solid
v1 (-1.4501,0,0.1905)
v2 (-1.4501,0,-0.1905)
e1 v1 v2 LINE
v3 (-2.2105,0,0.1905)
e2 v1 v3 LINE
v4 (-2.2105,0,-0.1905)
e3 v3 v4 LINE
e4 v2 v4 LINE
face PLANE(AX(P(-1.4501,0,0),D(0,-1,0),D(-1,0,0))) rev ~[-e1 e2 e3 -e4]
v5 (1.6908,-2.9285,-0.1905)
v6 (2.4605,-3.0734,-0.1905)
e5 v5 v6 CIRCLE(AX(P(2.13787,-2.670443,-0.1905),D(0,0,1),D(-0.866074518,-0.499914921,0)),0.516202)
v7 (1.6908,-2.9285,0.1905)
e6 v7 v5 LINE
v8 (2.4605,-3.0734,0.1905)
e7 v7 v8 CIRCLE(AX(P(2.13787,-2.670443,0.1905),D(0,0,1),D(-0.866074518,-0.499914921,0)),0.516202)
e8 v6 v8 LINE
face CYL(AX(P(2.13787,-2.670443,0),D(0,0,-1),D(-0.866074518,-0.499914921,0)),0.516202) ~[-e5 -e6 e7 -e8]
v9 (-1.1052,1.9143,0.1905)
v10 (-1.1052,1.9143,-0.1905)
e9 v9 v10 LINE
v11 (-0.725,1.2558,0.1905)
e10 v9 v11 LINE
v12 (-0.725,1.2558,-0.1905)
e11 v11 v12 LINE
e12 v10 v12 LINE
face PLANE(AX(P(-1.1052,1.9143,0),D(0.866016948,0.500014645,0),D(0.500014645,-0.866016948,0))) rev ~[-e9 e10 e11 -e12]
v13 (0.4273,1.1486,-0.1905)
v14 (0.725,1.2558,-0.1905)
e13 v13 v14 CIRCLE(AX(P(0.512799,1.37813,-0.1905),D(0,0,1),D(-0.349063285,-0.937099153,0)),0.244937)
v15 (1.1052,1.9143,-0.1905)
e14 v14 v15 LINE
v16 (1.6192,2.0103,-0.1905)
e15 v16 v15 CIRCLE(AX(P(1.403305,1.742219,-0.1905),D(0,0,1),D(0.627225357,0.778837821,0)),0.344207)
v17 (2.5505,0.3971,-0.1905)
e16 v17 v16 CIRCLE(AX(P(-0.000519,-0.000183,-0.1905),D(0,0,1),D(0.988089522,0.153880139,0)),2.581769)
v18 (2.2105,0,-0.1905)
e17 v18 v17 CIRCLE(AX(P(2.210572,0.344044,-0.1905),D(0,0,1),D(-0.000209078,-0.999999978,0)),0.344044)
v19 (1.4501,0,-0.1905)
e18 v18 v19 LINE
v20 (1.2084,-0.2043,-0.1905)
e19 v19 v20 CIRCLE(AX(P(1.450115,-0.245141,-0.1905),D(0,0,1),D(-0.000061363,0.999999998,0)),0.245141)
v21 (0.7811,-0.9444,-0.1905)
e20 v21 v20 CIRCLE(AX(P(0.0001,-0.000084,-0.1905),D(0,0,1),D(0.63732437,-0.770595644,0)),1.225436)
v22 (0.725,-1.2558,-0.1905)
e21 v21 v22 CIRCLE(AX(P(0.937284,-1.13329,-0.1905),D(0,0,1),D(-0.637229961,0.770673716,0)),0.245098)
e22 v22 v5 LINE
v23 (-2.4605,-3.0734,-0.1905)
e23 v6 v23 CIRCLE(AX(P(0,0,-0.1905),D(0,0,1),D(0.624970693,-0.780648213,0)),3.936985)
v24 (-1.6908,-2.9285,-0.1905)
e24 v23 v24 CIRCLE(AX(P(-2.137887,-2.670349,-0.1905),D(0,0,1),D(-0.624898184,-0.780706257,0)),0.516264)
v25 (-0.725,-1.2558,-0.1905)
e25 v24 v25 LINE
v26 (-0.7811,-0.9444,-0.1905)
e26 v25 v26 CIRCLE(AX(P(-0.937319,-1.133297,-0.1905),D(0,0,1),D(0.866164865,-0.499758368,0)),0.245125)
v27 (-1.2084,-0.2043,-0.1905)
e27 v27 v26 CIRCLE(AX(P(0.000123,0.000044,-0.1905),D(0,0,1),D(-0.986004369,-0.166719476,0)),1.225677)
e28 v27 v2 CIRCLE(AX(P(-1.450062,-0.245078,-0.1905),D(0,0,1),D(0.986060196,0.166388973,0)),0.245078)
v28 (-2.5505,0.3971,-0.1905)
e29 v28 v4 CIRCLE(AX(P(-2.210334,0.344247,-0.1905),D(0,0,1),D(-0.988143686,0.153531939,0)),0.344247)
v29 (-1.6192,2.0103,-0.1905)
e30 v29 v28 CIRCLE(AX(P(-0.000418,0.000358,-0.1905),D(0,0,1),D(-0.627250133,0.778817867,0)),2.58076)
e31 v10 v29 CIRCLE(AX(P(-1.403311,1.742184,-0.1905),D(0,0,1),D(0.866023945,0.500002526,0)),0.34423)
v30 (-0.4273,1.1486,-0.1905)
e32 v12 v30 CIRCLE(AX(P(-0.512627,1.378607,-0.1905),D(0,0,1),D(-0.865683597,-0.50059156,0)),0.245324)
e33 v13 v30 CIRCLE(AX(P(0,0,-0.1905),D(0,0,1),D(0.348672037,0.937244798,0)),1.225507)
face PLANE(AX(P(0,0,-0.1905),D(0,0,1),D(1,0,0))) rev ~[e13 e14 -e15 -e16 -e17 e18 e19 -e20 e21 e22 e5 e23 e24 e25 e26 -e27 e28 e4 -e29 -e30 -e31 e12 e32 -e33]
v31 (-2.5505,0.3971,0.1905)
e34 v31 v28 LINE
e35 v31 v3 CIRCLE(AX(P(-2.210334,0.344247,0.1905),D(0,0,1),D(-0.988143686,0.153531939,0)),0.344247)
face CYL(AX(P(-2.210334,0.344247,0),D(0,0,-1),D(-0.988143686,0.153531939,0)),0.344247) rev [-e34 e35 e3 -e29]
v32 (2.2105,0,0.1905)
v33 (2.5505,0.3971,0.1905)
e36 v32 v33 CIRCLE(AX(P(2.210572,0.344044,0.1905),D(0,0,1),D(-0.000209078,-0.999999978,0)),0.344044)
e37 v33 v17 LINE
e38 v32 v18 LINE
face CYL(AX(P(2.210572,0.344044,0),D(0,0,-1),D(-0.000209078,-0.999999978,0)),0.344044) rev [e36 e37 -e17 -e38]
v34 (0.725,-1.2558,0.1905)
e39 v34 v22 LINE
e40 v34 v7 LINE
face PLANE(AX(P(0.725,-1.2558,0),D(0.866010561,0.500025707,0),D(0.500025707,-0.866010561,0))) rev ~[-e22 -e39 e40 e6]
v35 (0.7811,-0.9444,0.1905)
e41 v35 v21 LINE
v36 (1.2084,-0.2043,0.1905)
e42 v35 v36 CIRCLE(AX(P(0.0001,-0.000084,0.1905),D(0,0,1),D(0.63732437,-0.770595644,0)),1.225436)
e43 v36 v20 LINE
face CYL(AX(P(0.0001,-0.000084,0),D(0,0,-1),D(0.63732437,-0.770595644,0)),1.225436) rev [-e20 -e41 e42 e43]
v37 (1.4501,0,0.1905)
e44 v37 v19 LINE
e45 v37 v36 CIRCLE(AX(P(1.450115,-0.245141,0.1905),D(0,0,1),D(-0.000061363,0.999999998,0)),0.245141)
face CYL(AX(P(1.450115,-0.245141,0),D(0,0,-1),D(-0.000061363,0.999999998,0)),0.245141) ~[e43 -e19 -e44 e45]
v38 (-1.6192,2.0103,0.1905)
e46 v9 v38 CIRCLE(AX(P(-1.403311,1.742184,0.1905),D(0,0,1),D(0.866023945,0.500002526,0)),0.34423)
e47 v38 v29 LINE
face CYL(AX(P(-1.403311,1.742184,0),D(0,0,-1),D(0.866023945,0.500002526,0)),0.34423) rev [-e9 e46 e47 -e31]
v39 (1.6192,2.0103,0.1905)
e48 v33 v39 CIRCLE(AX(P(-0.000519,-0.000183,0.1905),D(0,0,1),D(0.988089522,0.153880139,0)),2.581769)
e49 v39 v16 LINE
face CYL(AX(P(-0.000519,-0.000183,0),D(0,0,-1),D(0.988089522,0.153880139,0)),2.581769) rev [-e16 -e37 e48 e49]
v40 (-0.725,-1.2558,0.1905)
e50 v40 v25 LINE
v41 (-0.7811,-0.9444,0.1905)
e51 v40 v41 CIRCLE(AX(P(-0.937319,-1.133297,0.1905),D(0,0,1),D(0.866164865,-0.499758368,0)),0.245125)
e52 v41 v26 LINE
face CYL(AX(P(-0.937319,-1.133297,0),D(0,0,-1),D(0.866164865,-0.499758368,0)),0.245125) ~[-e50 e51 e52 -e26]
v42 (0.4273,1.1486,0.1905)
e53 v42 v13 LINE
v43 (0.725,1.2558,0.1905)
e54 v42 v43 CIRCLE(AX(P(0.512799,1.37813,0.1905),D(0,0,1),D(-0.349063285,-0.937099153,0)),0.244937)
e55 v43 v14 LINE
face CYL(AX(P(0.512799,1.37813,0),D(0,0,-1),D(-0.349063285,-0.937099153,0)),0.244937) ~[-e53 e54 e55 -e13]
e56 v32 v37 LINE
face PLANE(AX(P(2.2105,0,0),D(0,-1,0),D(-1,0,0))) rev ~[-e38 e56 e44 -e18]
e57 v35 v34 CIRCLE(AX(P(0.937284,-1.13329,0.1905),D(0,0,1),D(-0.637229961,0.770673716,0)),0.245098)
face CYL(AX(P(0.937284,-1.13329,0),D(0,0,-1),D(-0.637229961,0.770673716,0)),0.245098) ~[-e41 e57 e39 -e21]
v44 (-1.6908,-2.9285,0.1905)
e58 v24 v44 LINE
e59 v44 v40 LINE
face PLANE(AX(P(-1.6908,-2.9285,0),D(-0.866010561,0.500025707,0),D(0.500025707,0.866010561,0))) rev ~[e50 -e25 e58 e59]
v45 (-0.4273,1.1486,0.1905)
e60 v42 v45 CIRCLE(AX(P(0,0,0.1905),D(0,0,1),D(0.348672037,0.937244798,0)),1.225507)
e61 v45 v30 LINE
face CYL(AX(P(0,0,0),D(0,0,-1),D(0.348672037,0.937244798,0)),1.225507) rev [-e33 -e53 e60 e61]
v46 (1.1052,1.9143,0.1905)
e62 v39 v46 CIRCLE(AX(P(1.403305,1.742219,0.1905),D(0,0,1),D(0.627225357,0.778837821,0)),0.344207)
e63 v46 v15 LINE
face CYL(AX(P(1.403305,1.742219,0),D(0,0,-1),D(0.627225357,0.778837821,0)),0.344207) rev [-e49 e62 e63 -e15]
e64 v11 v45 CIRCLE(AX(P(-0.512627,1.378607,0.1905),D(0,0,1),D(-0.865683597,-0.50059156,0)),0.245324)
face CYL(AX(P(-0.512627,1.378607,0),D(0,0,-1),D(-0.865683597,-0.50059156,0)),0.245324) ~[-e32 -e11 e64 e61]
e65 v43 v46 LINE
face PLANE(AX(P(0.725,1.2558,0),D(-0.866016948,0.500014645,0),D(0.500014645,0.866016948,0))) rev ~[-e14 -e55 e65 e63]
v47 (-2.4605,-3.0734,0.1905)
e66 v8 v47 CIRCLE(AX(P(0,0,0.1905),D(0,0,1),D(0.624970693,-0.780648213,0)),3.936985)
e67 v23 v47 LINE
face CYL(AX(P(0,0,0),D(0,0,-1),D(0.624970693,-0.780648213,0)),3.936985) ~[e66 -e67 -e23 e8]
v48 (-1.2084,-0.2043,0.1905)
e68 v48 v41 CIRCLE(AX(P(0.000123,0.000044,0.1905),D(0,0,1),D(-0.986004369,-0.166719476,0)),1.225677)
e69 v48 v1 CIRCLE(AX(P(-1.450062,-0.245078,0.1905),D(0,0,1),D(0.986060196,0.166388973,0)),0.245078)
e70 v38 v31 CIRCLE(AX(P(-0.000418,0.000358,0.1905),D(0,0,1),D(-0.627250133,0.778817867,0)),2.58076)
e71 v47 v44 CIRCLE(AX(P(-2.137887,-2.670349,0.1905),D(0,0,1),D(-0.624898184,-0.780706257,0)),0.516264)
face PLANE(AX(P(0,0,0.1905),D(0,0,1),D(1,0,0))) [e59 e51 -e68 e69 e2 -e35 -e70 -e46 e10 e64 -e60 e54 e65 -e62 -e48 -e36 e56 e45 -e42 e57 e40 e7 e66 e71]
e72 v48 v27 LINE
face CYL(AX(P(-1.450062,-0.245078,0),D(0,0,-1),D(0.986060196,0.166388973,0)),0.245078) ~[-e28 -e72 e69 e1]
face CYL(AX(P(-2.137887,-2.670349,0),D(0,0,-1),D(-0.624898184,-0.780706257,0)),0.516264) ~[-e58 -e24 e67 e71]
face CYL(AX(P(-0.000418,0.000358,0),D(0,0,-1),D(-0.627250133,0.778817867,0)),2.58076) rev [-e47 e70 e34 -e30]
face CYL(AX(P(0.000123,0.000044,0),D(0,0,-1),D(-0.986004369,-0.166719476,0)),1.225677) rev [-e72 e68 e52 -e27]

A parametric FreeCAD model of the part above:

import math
import FreeCAD as App
import Part
import Sketcher

V = App.Vector
Q = App.Units.Quantity

doc = App.newDocument("Part")
body = doc.addObject("PartDesign::Body", "Body")

# Sketch on XY plane
sketch1 = body.newObject("Sketcher::SketchObject", "Sketch")
sketch1.AttachmentSupport = (doc.getObject("XY_Plane"), [""])
sketch1.MapMode = "FlatFace"
sketch1.addGeometry([
    Part.ArcOfCircle(Part.Circle(V(2.14, -2.67, 0), V(0, 0, 1), 0.52), math.radians(-150), math.radians(-51)),  # 0
    Part.ArcOfCircle(Part.Circle(V(0, 0, 0), V(0, 0, 1), 3.94), math.radians(-51), math.radians(231)),  # 1
    Part.ArcOfCircle(Part.Circle(V(-2.14, -2.67, 0), V(0, 0, 1), 0.52), math.radians(-129), math.radians(-30)),  # 2
    Part.LineSegment(V(-1.69, -2.93, 0), V(-0.72, -1.26, 0)),  # 3
    Part.ArcOfCircle(Part.Circle(V(-0.94, -1.13, 0), V(0, 0, 1), 0.25), math.radians(-30), math.radians(50)),  # 4
    Part.ArcOfCircle(Part.Circle(V(0, 0, 0), V(0, 0, 1), 1.23), math.radians(-170), math.radians(-130)),  # 5
    Part.ArcOfCircle(Part.Circle(V(-1.45, -0.25, 0), V(0, 0, 1), 0.25), math.radians(10), math.radians(90)),  # 6
    Part.LineSegment(V(-1.45, 0, 0), V(-2.21, 0, 0)),  # 7
    Part.ArcOfCircle(Part.Circle(V(-2.21, 0.34, 0), V(0, 0, 1), 0.34), math.radians(171), math.radians(270)),  # 8
    Part.ArcOfCircle(Part.Circle(V(0, 0, 0), V(0, 0, 1), 2.58), math.radians(129), math.radians(171)),  # 9
    Part.ArcOfCircle(Part.Circle(V(-1.4, 1.74, 0), V(0, 0, 1), 0.34), math.radians(30), math.radians(129)),  # 10
    Part.LineSegment(V(-1.11, 1.91, 0), V(-0.72, 1.26, 0)),  # 11
    Part.ArcOfCircle(Part.Circle(V(-0.51, 1.38, 0), V(0, 0, 1), 0.25), math.radians(-150), math.radians(-70)),  # 12
    Part.ArcOfCircle(Part.Circle(V(0, 0, 0), V(0, 0, 1), 1.23), math.radians(70), math.radians(110)),  # 13
    Part.ArcOfCircle(Part.Circle(V(0.51, 1.38, 0), V(0, 0, 1), 0.25), math.radians(-110), math.radians(-30)),  # 14
    Part.LineSegment(V(0.72, 1.26, 0), V(1.11, 1.91, 0)),  # 15
    Part.ArcOfCircle(Part.Circle(V(1.4, 1.74, 0), V(0, 0, 1), 0.34), math.radians(51), math.radians(150)),  # 16
    Part.ArcOfCircle(Part.Circle(V(0, 0, 0), V(0, 0, 1), 2.58), math.radians(9), math.radians(51)),  # 17
    Part.ArcOfCircle(Part.Circle(V(2.21, 0.34, 0), V(0, 0, 1), 0.34), math.radians(-90), math.radians(9)),  # 18
    Part.LineSegment(V(2.21, 0, 0), V(1.45, 0, 0)),  # 19
    Part.ArcOfCircle(Part.Circle(V(1.45, -0.25, 0), V(0, 0, 1), 0.25), math.radians(90), math.radians(170)),  # 20
    Part.ArcOfCircle(Part.Circle(V(0, 0, 0), V(0, 0, 1), 1.23), math.radians(-50), math.radians(-10)),  # 21
    Part.ArcOfCircle(Part.Circle(V(0.94, -1.13, 0), V(0, 0, 1), 0.25), math.radians(130), math.radians(210)),  # 22
    Part.LineSegment(V(0.72, -1.26, 0), V(1.69, -2.93, 0)),  # 23
], False)
sketch1.addConstraint([
    Sketcher.Constraint("Tangent", 0, 2, 1, 1),
    Sketcher.Constraint("Tangent", 1, 2, 2, 1),
    Sketcher.Constraint("Tangent", 2, 2, 3, 1),
    Sketcher.Constraint("Tangent", 3, 2, 4, 1),
    Sketcher.Constraint("Tangent", 4, 2, 5, 2),
    Sketcher.Constraint("Tangent", 5, 1, 6, 1),
    Sketcher.Constraint("Tangent", 6, 2, 7, 1),
    Sketcher.Constraint("Tangent", 7, 2, 8, 2),
    Sketcher.Constraint("Tangent", 8, 1, 9, 2),
    Sketcher.Constraint("Tangent", 9, 1, 10, 2),
    Sketcher.Constraint("Tangent", 10, 1, 11, 1),
    Sketcher.Constraint("Tangent", 11, 2, 12, 1),
    Sketcher.Constraint("Tangent", 12, 2, 13, 2),
    Sketcher.Constraint("Tangent", 13, 1, 14, 1),
    Sketcher.Constraint("Tangent", 14, 2, 15, 1),
    Sketcher.Constraint("Tangent", 15, 2, 16, 2),
    Sketcher.Constraint("Tangent", 16, 1, 17, 2),
    Sketcher.Constraint("Tangent", 17, 1, 18, 2),
    Sketcher.Constraint("Tangent", 18, 1, 19, 1),
    Sketcher.Constraint("Tangent", 19, 2, 20, 1),
    Sketcher.Constraint("Tangent", 20, 2, 21, 2),
    Sketcher.Constraint("Tangent", 21, 1, 22, 1),
    Sketcher.Constraint("Tangent", 22, 2, 23, 1),
    Sketcher.Constraint("Tangent", 23, 2, 0, 1),
    Sketcher.Constraint("Horizontal", 7),
    Sketcher.Constraint("Horizontal", 19),
    Sketcher.Constraint("Coincident", 1, 3, -1, 1),
    Sketcher.Constraint("Coincident", 5, 3, -1, 1),
    Sketcher.Constraint("Coincident", 9, 3, -1, 1),
    Sketcher.Constraint("Coincident", 13, 3, -1, 1),
    Sketcher.Constraint("Coincident", 17, 3, -1, 1),
    Sketcher.Constraint("Coincident", 21, 3, -1, 1),
    Sketcher.Constraint("Equal", 0, 2),
    Sketcher.Constraint("Equal", 4, 6),
    Sketcher.Constraint("Equal", 8, 10),
    Sketcher.Constraint("Equal", 6, 12),
    Sketcher.Constraint("Equal", 5, 13),
    Sketcher.Constraint("Equal", 12, 14),
    Sketcher.Constraint("Equal", 10, 16),
    Sketcher.Constraint("Equal", 9, 17),
    Sketcher.Constraint("Equal", 16, 18),
    Sketcher.Constraint("Equal", 14, 20),
    Sketcher.Constraint("Equal", 13, 21),
    Sketcher.Constraint("Equal", 20, 22),
    Sketcher.Constraint("Symmetric", 3, 2, 14, 2, -1, 1),
    Sketcher.Constraint("Symmetric", 7, 2, 18, 1, -1, 1),
    Sketcher.Constraint("Symmetric", 11, 2, 22, 2, -1, 1),
    Sketcher.Constraint("Symmetric", 11, 2, 14, 2, -2),
    Sketcher.Constraint("Parallel", 3, 15),
    Sketcher.Constraint("Angle", 11, Q("-59.999 deg")),
    Sketcher.Constraint("Radius", 1, Q("0.155 in")),
    Sketcher.Constraint("Radius", 0, Q("0.5162 mm")),
    Sketcher.Constraint("Radius", 4, Q("0.245 mm")),
    Sketcher.Constraint("Radius", 5, Q("1.2256 mm")),
    Sketcher.Constraint("Radius", 8, Q("0.344 mm")),
    Sketcher.Constraint("Radius", 9, Q("2.5812 mm")),
])
pad1 = body.newObject("PartDesign::Pad", "Pad")
pad1.Profile = sketch1
pad1.Length = Q("0.015 in")
pad1.Midplane = True

doc.recompute()
